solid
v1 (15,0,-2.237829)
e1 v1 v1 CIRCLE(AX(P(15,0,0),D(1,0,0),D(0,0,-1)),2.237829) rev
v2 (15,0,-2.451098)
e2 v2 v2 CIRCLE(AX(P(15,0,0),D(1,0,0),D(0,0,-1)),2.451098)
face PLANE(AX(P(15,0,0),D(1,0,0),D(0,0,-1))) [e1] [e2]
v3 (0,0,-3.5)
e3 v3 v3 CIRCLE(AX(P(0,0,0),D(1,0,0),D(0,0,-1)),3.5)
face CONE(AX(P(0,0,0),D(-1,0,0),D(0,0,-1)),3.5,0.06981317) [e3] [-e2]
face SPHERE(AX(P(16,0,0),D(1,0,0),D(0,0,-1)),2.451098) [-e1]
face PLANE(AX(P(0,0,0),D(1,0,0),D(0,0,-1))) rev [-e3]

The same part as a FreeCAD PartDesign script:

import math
import FreeCAD as App
import Part
import Sketcher
Q = App.Units.Quantity

doc = App.newDocument("Part")
body = doc.addObject("PartDesign::Body", "Body")

# Sketch on YZ plane
sketch1 = body.newObject("Sketcher::SketchObject", "Sketch")
sketch1.AttachmentSupport = (doc.getObject("YZ_Plane"), [""])
sketch1.MapMode = "FlatFace"
sketch1.addGeometry(Part.Circle(App.Vector(0, 0, 0), App.Vector(0, 0, 1), 3.5), False)
sketch1.addConstraint(Sketcher.Constraint("Coincident", 0, 3, -1, 1))
sketch1.addConstraint(Sketcher.Constraint("Diameter", 0, Q("7 mm")))
pad1 = body.newObject("PartDesign::Pad", "Pad")
pad1.Profile = sketch1
pad1.Length = 15
pad1.TaperAngle = -4

# Sketch on YZ plane
sketch2 = body.newObject("Sketcher::SketchObject", "Sketch001")
sketch2.AttachmentSupport = (doc.getObject("YZ_Plane"), [""])
sketch2.MapMode = "FlatFace"
sketch2.AttachmentOffset = App.Placement(App.Vector(0, 0, 16), App.Rotation())
sketch2.addGeometry(Part.LineSegment(App.Vector(2.5, 0, 0), App.Vector(-2.5, 0, 0)), False)
sketch2.addGeometry(Part.ArcOfCircle(Part.Circle(App.Vector(0, 0, 0), App.Vector(0, 0, 1), 2.5), math.radians(180), math.radians(360)), False)
sketch2.addConstraint(Sketcher.Constraint("Coincident", 0, 1, 1, 2))
sketch2.addConstraint(Sketcher.Constraint("Coincident", 1, 1, 0, 2))
sketch2.addConstraint(Sketcher.Constraint("Horizontal", 0))
sketch2.addConstraint(Sketcher.Constraint("Coincident", 1, 3, -1, 1))
sketch2.addConstraint(Sketcher.Constraint("PointOnObject", 0, 1, -1))
sketch2.addConstraint(Sketcher.Constraint("Radius", 1, Q("2.451098 mm")))
revolution = body.newObject("PartDesign::Revolution", "Revolution")
revolution.Profile = sketch2
revolution.ReferenceAxis = (sketch2, ["H_Axis"])
revolution.Angle = 360

doc.recompute()
